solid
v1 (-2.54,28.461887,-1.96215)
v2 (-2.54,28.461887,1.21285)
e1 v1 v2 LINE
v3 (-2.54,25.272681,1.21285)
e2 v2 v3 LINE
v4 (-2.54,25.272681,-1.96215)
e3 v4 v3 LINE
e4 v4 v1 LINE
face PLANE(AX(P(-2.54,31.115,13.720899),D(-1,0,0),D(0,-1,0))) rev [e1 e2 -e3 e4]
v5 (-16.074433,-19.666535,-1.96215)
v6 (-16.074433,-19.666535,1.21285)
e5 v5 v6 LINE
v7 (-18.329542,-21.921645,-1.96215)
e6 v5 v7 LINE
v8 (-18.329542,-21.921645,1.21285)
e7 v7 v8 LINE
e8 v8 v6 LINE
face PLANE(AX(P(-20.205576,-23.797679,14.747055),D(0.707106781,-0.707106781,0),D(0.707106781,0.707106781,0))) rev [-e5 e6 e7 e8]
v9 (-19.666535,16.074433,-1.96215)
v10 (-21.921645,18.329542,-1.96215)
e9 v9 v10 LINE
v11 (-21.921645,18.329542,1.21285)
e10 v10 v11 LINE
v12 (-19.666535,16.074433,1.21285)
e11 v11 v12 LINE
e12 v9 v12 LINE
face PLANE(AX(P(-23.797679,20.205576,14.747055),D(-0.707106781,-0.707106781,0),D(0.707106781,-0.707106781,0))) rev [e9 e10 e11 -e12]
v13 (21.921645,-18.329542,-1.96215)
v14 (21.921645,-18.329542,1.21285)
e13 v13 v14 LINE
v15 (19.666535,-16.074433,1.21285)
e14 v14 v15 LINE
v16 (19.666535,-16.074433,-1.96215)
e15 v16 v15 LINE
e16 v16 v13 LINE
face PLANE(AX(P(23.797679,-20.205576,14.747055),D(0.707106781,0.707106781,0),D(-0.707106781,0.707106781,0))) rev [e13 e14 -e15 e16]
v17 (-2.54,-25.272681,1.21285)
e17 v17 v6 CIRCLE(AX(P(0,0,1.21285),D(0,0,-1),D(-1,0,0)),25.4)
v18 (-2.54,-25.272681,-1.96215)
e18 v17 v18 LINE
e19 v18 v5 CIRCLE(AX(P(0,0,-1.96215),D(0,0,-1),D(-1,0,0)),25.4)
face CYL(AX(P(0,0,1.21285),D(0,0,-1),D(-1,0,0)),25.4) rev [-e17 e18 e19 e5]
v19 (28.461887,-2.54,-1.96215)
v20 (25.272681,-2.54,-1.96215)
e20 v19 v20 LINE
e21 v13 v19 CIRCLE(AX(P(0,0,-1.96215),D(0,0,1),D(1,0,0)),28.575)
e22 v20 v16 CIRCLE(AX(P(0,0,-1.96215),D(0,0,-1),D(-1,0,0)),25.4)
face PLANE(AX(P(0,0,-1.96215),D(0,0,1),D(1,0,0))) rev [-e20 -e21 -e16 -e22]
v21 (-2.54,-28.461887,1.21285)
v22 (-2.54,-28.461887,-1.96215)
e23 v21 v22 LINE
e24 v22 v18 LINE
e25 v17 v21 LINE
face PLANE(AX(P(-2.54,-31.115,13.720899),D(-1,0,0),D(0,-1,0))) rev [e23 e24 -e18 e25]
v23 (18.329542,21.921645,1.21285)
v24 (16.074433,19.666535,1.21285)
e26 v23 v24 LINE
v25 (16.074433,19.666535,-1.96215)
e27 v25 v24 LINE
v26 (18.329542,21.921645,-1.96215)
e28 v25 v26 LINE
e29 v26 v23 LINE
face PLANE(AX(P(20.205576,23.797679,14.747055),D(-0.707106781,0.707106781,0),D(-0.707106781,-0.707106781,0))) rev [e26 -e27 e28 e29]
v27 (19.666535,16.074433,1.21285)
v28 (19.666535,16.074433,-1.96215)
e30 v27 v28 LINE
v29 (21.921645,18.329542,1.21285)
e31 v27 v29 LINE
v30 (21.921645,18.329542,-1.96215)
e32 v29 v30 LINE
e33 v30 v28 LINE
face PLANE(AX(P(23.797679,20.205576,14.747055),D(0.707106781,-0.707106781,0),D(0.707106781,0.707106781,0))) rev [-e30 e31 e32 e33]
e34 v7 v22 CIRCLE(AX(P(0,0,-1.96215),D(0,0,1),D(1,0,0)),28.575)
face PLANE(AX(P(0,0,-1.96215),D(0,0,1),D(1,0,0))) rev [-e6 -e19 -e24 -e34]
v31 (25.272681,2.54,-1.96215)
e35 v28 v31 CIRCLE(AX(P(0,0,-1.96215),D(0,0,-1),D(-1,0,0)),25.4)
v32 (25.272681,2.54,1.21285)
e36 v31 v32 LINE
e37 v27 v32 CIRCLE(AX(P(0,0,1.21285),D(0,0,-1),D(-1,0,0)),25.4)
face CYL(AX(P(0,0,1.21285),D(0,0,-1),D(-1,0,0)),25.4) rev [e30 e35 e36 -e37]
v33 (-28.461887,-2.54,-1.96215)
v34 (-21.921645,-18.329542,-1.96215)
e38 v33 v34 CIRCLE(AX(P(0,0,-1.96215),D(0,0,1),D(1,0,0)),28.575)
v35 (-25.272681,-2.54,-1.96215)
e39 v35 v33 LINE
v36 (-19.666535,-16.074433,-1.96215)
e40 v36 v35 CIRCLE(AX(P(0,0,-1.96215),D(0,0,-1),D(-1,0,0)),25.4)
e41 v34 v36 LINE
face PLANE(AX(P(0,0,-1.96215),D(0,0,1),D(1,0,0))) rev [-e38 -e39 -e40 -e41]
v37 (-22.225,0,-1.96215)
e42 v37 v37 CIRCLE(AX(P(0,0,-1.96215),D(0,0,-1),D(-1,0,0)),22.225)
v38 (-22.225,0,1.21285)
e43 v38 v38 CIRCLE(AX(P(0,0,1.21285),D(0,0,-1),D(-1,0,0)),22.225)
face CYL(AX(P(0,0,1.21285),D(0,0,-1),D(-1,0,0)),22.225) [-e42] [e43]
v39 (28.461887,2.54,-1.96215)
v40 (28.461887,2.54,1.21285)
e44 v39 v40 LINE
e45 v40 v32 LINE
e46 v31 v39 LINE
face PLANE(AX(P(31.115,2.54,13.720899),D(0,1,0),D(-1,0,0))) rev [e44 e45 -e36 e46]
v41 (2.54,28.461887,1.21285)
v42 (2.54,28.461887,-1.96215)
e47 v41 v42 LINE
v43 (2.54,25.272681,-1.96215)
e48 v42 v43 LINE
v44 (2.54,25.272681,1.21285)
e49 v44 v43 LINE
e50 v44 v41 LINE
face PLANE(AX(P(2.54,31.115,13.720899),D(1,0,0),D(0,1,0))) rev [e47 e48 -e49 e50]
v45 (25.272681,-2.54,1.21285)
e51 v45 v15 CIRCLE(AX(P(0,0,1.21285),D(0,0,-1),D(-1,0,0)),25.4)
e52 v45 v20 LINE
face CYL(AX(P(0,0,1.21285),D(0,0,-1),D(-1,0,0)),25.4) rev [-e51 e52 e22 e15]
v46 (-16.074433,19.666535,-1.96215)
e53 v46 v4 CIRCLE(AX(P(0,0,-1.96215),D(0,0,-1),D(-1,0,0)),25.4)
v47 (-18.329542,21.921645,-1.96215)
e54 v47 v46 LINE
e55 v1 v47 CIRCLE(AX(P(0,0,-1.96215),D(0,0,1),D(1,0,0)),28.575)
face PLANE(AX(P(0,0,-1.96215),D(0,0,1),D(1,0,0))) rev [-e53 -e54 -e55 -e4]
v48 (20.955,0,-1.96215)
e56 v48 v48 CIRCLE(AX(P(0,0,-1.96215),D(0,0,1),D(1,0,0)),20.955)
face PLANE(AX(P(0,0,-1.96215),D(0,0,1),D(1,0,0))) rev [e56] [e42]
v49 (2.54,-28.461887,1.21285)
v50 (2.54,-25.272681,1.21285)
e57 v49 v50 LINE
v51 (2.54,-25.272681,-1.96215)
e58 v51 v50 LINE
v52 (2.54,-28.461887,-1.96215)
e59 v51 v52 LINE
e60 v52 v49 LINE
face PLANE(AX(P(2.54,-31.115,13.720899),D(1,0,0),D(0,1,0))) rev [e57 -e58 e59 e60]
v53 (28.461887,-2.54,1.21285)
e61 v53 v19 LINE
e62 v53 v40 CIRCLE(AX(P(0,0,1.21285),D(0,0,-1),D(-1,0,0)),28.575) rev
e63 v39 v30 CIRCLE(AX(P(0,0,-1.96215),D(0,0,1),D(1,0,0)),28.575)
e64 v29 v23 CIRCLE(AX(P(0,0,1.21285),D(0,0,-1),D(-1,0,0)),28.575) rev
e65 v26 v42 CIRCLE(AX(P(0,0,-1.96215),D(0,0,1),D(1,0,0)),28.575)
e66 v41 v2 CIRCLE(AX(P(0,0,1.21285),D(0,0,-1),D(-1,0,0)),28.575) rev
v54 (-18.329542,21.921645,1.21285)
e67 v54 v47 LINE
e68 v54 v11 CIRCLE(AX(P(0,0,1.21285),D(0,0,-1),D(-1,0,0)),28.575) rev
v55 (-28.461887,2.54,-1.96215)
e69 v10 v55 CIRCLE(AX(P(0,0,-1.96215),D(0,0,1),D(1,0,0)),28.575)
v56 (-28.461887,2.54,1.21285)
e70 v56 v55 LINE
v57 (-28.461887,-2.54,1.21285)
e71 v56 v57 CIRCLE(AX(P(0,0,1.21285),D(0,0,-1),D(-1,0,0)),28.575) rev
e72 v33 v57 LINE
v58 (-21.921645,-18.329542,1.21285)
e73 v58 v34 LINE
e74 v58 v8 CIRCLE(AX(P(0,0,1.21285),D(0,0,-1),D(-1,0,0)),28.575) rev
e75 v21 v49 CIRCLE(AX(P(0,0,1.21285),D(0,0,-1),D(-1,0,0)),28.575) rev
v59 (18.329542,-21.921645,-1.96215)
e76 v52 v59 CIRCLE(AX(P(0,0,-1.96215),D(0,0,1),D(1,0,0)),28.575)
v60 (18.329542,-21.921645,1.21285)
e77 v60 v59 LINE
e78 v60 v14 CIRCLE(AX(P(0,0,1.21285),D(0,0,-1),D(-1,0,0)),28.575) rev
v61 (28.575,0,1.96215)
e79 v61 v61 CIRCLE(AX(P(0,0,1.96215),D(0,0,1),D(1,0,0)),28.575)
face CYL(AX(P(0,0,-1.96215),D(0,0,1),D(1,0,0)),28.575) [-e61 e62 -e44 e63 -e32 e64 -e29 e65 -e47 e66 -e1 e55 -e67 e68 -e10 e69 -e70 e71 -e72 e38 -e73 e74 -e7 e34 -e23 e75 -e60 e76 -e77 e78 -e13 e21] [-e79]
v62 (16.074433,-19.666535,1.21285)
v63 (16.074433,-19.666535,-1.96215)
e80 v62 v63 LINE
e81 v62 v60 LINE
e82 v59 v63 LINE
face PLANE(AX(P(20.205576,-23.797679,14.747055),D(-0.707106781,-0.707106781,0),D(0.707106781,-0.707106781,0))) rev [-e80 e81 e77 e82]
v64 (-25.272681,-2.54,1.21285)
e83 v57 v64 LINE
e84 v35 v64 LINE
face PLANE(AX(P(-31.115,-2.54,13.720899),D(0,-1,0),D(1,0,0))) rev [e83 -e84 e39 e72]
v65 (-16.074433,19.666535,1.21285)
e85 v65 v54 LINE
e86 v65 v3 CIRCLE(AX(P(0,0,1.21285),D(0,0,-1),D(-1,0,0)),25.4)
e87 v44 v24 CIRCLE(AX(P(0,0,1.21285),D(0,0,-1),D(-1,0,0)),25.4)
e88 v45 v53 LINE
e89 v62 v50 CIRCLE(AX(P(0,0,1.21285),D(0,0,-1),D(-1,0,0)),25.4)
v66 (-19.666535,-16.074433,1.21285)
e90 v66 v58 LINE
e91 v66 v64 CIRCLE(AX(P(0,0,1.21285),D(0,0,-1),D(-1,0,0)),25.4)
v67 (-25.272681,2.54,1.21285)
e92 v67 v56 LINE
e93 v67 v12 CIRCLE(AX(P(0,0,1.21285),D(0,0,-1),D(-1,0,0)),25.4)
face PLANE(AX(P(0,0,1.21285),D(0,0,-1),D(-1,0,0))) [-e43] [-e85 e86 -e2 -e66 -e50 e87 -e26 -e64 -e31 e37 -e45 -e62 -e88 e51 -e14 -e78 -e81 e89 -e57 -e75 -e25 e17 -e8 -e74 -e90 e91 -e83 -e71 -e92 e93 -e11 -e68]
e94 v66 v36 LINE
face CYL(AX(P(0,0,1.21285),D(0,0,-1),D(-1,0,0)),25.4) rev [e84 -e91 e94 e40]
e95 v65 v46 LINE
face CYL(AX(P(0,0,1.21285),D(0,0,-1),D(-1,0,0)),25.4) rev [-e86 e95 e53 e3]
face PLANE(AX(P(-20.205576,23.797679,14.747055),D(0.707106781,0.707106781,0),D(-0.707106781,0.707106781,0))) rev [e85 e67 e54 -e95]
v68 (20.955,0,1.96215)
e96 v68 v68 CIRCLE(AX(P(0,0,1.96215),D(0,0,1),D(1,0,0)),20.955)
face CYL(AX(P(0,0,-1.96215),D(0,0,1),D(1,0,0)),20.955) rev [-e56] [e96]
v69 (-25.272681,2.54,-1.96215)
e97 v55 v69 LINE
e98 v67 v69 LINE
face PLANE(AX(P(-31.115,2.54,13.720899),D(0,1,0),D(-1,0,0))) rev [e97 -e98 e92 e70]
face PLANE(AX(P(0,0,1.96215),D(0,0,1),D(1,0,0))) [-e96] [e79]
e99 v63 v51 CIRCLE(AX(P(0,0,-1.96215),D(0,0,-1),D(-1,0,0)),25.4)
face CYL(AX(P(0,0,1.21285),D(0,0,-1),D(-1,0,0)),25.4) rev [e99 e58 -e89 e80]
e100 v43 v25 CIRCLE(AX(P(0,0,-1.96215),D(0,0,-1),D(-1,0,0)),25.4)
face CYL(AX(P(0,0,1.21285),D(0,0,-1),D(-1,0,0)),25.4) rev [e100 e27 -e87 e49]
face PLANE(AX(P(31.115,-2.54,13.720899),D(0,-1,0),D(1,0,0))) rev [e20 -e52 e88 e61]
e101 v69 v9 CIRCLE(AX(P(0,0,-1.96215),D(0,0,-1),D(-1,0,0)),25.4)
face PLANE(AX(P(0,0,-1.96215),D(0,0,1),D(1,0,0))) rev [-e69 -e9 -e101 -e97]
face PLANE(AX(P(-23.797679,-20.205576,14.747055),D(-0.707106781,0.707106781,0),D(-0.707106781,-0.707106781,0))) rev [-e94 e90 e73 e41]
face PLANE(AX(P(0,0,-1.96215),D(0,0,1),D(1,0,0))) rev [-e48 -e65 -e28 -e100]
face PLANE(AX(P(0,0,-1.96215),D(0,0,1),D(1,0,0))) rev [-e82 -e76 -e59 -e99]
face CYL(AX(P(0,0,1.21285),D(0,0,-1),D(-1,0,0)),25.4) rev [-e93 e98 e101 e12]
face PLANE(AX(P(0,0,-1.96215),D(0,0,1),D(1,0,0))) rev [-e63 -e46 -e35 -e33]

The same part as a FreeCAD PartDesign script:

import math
import FreeCAD as App
import Part
import Sketcher

V = App.Vector
Q = App.Units.Quantity

doc = App.newDocument("Part")
params = doc.addObject("Spreadsheet::Sheet", "Params")
for row, (alias, value) in enumerate([
    ("sketch1_diameter", "2.25 in"),
    ("sketch1_diameter2", "1.65 in"),
    ("pad1_length", "1.96215 mm"),
    ("pad1_length2", "1.96215 mm"),
    ("hole_diameter", "0.0469 in"),
    ("hole_depth", "0.13 in"),
    ("sketch3_diameter", "2 in"),
    ("sketch3_diameter2", "1.75 in"),
    ("pocket1_length", "0.125 in"),
    ("sketch4_radius", "0.1 in"),
    ("sketch4_height", "0.25 in"),
    ("pocket2_length", "0.125 in"),
], start=1):
    params.set(f"A{row}", alias)
    params.set(f"B{row}", "=" + value)
    params.setAlias(f"B{row}", alias)

body = doc.addObject("PartDesign::Body", "Body")

# Sketch on XY plane
sketch1 = body.newObject("Sketcher::SketchObject", "Sketch")
sketch1.AttachmentSupport = (doc.getObject("XY_Plane"), [""])
sketch1.MapMode = "FlatFace"
sketch1.addGeometry(Part.Circle(V(0, 0, 0), V(0, 0, 1), 28.575), False)
sketch1.addGeometry(Part.Circle(V(0, 0, 0), V(0, 0, 1), 20.955), False)
sketch1.addConstraint(Sketcher.Constraint("Coincident", 0, 3, -1, 1))
sketch1.addConstraint(Sketcher.Constraint("Coincident", 1, 3, -1, 1))
sketch1.addConstraint(Sketcher.Constraint("Diameter", 0, Q("2.25 in")))
sketch1.addConstraint(Sketcher.Constraint("Diameter", 1, Q("1.65 in")))
sketch1.setExpression("Constraints[2]", "Params.sketch1_diameter")
sketch1.setExpression("Constraints[3]", "Params.sketch1_diameter2")
pad1 = body.newObject("PartDesign::Pad", "Pad")
pad1.Profile = sketch1
pad1.Type = "TwoLengths"
pad1.setExpression("Length", "Params.pad1_length")
pad1.setExpression("Length2", "Params.pad1_length2")

# Sketch on XZ plane
sketch2 = body.newObject("Sketcher::SketchObject", "Sketch001")
sketch2.AttachmentSupport = (doc.getObject("XZ_Plane"), [""])
sketch2.MapMode = "FlatFace"
sketch2.AttachmentOffset = App.Placement(V(0, 0, -1.125 * 25.4), App.Rotation())
sketch2.addGeometry(Part.Circle(V(0, 0.041948, 0), V(0, 0, 1), 0.59563), False)
sketch2.addConstraint(Sketcher.Constraint("PointOnObject", 0, 3, -2))
sketch2.addConstraint(Sketcher.Constraint("Diameter", 0, Q("0.0469 in")))
sketch2.addConstraint(Sketcher.Constraint("DistanceY", -1, 1, 0, 3, Q("0.041948 mm")))
doc.recompute()
hole = body.newObject("PartDesign::Hole", "Hole")
hole.Profile = sketch2
hole.ThreadType = "None"
hole.setExpression("Diameter", "Params.hole_diameter")
hole.DepthType = "Dimension"
hole.setExpression("Depth", "Params.hole_depth")
hole.DrillPoint = "Angled"
hole.DrillPointAngle = 118
hole.Reversed = True

# Sketch on XY plane
sketch3 = body.newObject("Sketcher::SketchObject", "Sketch002")
sketch3.AttachmentSupport = (doc.getObject("XY_Plane"), [""])
sketch3.MapMode = "FlatFace"
sketch3.AttachmentOffset = App.Placement(V(0, 0, -1.96215), App.Rotation())
sketch3.addGeometry(Part.Circle(V(0, 0, 0), V(0, 0, 1), 25.4), False)
sketch3.addGeometry(Part.Circle(V(0, 0, 0), V(0, 0, 1), 22.225), False)
sketch3.addConstraint(Sketcher.Constraint("Coincident", 0, 3, -1, 1))
sketch3.addConstraint(Sketcher.Constraint("Coincident", 1, 3, -1, 1))
sketch3.addConstraint(Sketcher.Constraint("Diameter", 0, Q("2 in")))
sketch3.addConstraint(Sketcher.Constraint("Diameter", 1, Q("1.75 in")))
sketch3.setExpression("Constraints[2]", "Params.sketch3_diameter")
sketch3.setExpression("Constraints[3]", "Params.sketch3_diameter2")
pocket1 = body.newObject("PartDesign::Pocket", "Pocket")
pocket1.Profile = sketch3
pocket1.setExpression("Length", "Params.pocket1_length")
pocket1.Reversed = True

# Sketch on XY plane
sketch4 = body.newObject("Sketcher::SketchObject", "Sketch003")
sketch4.AttachmentSupport = (doc.getObject("XY_Plane"), [""])
sketch4.MapMode = "FlatFace"
sketch4.AttachmentOffset = App.Placement(V(0, 0, -1.96215), App.Rotation())
sketch4.addGeometry(Part.LineSegment(V(-2.54, 24.765, 0), V(-2.54, 31.115, 0)), False)
sketch4.addGeometry(Part.ArcOfCircle(Part.Circle(V(0, 31.115, 0), V(0, 0, 1), 2.54), math.radians(0), math.radians(180)), False)
sketch4.addGeometry(Part.LineSegment(V(2.54, 31.115, 0), V(2.54, 24.765, 0)), False)
sketch4.addGeometry(Part.ArcOfCircle(Part.Circle(V(0, 24.765, 0), V(0, 0, 1), 2.54), math.radians(180), math.radians(360)), False)
sketch4.addConstraint(Sketcher.Constraint("Tangent", 0, 2, 1, 2))
sketch4.addConstraint(Sketcher.Constraint("Tangent", 1, 1, 2, 1))
sketch4.addConstraint(Sketcher.Constraint("Tangent", 2, 2, 3, 2))
sketch4.addConstraint(Sketcher.Constraint("Tangent", 3, 1, 0, 1))
sketch4.addConstraint(Sketcher.Constraint("Vertical", 0))
sketch4.addConstraint(Sketcher.Constraint("Vertical", 2))
sketch4.addConstraint(Sketcher.Constraint("PointOnObject", 1, 3, -2))
sketch4.addConstraint(Sketcher.Constraint("Radius", 1, Q("0.1 in")))
sketch4.addConstraint(Sketcher.Constraint("DistanceY", 0, 1, 0, 2, Q("0.25 in")))
sketch4.addConstraint(Sketcher.Constraint("DistanceY", -1, 1, 1, 3, Q("1.225 in")))
sketch4.setExpression("Constraints[7]", "Params.sketch4_radius")
sketch4.setExpression("Constraints[8]", "Params.sketch4_height")
pocket2 = body.newObject("PartDesign::Pocket", "Pocket001")
pocket2.Profile = sketch4
pocket2.setExpression("Length", "Params.pocket2_length")
pocket2.Reversed = True
doc.recompute()

polarpattern = body.newObject("PartDesign::PolarPattern", "PolarPattern")
polarpattern.Originals = [pocket2]
polarpattern.Axis = (doc.getObject("Z_Axis"), [""])
polarpattern.Angle = 360
polarpattern.Occurrences = 8
body.Tip = polarpattern

doc.recompute()
